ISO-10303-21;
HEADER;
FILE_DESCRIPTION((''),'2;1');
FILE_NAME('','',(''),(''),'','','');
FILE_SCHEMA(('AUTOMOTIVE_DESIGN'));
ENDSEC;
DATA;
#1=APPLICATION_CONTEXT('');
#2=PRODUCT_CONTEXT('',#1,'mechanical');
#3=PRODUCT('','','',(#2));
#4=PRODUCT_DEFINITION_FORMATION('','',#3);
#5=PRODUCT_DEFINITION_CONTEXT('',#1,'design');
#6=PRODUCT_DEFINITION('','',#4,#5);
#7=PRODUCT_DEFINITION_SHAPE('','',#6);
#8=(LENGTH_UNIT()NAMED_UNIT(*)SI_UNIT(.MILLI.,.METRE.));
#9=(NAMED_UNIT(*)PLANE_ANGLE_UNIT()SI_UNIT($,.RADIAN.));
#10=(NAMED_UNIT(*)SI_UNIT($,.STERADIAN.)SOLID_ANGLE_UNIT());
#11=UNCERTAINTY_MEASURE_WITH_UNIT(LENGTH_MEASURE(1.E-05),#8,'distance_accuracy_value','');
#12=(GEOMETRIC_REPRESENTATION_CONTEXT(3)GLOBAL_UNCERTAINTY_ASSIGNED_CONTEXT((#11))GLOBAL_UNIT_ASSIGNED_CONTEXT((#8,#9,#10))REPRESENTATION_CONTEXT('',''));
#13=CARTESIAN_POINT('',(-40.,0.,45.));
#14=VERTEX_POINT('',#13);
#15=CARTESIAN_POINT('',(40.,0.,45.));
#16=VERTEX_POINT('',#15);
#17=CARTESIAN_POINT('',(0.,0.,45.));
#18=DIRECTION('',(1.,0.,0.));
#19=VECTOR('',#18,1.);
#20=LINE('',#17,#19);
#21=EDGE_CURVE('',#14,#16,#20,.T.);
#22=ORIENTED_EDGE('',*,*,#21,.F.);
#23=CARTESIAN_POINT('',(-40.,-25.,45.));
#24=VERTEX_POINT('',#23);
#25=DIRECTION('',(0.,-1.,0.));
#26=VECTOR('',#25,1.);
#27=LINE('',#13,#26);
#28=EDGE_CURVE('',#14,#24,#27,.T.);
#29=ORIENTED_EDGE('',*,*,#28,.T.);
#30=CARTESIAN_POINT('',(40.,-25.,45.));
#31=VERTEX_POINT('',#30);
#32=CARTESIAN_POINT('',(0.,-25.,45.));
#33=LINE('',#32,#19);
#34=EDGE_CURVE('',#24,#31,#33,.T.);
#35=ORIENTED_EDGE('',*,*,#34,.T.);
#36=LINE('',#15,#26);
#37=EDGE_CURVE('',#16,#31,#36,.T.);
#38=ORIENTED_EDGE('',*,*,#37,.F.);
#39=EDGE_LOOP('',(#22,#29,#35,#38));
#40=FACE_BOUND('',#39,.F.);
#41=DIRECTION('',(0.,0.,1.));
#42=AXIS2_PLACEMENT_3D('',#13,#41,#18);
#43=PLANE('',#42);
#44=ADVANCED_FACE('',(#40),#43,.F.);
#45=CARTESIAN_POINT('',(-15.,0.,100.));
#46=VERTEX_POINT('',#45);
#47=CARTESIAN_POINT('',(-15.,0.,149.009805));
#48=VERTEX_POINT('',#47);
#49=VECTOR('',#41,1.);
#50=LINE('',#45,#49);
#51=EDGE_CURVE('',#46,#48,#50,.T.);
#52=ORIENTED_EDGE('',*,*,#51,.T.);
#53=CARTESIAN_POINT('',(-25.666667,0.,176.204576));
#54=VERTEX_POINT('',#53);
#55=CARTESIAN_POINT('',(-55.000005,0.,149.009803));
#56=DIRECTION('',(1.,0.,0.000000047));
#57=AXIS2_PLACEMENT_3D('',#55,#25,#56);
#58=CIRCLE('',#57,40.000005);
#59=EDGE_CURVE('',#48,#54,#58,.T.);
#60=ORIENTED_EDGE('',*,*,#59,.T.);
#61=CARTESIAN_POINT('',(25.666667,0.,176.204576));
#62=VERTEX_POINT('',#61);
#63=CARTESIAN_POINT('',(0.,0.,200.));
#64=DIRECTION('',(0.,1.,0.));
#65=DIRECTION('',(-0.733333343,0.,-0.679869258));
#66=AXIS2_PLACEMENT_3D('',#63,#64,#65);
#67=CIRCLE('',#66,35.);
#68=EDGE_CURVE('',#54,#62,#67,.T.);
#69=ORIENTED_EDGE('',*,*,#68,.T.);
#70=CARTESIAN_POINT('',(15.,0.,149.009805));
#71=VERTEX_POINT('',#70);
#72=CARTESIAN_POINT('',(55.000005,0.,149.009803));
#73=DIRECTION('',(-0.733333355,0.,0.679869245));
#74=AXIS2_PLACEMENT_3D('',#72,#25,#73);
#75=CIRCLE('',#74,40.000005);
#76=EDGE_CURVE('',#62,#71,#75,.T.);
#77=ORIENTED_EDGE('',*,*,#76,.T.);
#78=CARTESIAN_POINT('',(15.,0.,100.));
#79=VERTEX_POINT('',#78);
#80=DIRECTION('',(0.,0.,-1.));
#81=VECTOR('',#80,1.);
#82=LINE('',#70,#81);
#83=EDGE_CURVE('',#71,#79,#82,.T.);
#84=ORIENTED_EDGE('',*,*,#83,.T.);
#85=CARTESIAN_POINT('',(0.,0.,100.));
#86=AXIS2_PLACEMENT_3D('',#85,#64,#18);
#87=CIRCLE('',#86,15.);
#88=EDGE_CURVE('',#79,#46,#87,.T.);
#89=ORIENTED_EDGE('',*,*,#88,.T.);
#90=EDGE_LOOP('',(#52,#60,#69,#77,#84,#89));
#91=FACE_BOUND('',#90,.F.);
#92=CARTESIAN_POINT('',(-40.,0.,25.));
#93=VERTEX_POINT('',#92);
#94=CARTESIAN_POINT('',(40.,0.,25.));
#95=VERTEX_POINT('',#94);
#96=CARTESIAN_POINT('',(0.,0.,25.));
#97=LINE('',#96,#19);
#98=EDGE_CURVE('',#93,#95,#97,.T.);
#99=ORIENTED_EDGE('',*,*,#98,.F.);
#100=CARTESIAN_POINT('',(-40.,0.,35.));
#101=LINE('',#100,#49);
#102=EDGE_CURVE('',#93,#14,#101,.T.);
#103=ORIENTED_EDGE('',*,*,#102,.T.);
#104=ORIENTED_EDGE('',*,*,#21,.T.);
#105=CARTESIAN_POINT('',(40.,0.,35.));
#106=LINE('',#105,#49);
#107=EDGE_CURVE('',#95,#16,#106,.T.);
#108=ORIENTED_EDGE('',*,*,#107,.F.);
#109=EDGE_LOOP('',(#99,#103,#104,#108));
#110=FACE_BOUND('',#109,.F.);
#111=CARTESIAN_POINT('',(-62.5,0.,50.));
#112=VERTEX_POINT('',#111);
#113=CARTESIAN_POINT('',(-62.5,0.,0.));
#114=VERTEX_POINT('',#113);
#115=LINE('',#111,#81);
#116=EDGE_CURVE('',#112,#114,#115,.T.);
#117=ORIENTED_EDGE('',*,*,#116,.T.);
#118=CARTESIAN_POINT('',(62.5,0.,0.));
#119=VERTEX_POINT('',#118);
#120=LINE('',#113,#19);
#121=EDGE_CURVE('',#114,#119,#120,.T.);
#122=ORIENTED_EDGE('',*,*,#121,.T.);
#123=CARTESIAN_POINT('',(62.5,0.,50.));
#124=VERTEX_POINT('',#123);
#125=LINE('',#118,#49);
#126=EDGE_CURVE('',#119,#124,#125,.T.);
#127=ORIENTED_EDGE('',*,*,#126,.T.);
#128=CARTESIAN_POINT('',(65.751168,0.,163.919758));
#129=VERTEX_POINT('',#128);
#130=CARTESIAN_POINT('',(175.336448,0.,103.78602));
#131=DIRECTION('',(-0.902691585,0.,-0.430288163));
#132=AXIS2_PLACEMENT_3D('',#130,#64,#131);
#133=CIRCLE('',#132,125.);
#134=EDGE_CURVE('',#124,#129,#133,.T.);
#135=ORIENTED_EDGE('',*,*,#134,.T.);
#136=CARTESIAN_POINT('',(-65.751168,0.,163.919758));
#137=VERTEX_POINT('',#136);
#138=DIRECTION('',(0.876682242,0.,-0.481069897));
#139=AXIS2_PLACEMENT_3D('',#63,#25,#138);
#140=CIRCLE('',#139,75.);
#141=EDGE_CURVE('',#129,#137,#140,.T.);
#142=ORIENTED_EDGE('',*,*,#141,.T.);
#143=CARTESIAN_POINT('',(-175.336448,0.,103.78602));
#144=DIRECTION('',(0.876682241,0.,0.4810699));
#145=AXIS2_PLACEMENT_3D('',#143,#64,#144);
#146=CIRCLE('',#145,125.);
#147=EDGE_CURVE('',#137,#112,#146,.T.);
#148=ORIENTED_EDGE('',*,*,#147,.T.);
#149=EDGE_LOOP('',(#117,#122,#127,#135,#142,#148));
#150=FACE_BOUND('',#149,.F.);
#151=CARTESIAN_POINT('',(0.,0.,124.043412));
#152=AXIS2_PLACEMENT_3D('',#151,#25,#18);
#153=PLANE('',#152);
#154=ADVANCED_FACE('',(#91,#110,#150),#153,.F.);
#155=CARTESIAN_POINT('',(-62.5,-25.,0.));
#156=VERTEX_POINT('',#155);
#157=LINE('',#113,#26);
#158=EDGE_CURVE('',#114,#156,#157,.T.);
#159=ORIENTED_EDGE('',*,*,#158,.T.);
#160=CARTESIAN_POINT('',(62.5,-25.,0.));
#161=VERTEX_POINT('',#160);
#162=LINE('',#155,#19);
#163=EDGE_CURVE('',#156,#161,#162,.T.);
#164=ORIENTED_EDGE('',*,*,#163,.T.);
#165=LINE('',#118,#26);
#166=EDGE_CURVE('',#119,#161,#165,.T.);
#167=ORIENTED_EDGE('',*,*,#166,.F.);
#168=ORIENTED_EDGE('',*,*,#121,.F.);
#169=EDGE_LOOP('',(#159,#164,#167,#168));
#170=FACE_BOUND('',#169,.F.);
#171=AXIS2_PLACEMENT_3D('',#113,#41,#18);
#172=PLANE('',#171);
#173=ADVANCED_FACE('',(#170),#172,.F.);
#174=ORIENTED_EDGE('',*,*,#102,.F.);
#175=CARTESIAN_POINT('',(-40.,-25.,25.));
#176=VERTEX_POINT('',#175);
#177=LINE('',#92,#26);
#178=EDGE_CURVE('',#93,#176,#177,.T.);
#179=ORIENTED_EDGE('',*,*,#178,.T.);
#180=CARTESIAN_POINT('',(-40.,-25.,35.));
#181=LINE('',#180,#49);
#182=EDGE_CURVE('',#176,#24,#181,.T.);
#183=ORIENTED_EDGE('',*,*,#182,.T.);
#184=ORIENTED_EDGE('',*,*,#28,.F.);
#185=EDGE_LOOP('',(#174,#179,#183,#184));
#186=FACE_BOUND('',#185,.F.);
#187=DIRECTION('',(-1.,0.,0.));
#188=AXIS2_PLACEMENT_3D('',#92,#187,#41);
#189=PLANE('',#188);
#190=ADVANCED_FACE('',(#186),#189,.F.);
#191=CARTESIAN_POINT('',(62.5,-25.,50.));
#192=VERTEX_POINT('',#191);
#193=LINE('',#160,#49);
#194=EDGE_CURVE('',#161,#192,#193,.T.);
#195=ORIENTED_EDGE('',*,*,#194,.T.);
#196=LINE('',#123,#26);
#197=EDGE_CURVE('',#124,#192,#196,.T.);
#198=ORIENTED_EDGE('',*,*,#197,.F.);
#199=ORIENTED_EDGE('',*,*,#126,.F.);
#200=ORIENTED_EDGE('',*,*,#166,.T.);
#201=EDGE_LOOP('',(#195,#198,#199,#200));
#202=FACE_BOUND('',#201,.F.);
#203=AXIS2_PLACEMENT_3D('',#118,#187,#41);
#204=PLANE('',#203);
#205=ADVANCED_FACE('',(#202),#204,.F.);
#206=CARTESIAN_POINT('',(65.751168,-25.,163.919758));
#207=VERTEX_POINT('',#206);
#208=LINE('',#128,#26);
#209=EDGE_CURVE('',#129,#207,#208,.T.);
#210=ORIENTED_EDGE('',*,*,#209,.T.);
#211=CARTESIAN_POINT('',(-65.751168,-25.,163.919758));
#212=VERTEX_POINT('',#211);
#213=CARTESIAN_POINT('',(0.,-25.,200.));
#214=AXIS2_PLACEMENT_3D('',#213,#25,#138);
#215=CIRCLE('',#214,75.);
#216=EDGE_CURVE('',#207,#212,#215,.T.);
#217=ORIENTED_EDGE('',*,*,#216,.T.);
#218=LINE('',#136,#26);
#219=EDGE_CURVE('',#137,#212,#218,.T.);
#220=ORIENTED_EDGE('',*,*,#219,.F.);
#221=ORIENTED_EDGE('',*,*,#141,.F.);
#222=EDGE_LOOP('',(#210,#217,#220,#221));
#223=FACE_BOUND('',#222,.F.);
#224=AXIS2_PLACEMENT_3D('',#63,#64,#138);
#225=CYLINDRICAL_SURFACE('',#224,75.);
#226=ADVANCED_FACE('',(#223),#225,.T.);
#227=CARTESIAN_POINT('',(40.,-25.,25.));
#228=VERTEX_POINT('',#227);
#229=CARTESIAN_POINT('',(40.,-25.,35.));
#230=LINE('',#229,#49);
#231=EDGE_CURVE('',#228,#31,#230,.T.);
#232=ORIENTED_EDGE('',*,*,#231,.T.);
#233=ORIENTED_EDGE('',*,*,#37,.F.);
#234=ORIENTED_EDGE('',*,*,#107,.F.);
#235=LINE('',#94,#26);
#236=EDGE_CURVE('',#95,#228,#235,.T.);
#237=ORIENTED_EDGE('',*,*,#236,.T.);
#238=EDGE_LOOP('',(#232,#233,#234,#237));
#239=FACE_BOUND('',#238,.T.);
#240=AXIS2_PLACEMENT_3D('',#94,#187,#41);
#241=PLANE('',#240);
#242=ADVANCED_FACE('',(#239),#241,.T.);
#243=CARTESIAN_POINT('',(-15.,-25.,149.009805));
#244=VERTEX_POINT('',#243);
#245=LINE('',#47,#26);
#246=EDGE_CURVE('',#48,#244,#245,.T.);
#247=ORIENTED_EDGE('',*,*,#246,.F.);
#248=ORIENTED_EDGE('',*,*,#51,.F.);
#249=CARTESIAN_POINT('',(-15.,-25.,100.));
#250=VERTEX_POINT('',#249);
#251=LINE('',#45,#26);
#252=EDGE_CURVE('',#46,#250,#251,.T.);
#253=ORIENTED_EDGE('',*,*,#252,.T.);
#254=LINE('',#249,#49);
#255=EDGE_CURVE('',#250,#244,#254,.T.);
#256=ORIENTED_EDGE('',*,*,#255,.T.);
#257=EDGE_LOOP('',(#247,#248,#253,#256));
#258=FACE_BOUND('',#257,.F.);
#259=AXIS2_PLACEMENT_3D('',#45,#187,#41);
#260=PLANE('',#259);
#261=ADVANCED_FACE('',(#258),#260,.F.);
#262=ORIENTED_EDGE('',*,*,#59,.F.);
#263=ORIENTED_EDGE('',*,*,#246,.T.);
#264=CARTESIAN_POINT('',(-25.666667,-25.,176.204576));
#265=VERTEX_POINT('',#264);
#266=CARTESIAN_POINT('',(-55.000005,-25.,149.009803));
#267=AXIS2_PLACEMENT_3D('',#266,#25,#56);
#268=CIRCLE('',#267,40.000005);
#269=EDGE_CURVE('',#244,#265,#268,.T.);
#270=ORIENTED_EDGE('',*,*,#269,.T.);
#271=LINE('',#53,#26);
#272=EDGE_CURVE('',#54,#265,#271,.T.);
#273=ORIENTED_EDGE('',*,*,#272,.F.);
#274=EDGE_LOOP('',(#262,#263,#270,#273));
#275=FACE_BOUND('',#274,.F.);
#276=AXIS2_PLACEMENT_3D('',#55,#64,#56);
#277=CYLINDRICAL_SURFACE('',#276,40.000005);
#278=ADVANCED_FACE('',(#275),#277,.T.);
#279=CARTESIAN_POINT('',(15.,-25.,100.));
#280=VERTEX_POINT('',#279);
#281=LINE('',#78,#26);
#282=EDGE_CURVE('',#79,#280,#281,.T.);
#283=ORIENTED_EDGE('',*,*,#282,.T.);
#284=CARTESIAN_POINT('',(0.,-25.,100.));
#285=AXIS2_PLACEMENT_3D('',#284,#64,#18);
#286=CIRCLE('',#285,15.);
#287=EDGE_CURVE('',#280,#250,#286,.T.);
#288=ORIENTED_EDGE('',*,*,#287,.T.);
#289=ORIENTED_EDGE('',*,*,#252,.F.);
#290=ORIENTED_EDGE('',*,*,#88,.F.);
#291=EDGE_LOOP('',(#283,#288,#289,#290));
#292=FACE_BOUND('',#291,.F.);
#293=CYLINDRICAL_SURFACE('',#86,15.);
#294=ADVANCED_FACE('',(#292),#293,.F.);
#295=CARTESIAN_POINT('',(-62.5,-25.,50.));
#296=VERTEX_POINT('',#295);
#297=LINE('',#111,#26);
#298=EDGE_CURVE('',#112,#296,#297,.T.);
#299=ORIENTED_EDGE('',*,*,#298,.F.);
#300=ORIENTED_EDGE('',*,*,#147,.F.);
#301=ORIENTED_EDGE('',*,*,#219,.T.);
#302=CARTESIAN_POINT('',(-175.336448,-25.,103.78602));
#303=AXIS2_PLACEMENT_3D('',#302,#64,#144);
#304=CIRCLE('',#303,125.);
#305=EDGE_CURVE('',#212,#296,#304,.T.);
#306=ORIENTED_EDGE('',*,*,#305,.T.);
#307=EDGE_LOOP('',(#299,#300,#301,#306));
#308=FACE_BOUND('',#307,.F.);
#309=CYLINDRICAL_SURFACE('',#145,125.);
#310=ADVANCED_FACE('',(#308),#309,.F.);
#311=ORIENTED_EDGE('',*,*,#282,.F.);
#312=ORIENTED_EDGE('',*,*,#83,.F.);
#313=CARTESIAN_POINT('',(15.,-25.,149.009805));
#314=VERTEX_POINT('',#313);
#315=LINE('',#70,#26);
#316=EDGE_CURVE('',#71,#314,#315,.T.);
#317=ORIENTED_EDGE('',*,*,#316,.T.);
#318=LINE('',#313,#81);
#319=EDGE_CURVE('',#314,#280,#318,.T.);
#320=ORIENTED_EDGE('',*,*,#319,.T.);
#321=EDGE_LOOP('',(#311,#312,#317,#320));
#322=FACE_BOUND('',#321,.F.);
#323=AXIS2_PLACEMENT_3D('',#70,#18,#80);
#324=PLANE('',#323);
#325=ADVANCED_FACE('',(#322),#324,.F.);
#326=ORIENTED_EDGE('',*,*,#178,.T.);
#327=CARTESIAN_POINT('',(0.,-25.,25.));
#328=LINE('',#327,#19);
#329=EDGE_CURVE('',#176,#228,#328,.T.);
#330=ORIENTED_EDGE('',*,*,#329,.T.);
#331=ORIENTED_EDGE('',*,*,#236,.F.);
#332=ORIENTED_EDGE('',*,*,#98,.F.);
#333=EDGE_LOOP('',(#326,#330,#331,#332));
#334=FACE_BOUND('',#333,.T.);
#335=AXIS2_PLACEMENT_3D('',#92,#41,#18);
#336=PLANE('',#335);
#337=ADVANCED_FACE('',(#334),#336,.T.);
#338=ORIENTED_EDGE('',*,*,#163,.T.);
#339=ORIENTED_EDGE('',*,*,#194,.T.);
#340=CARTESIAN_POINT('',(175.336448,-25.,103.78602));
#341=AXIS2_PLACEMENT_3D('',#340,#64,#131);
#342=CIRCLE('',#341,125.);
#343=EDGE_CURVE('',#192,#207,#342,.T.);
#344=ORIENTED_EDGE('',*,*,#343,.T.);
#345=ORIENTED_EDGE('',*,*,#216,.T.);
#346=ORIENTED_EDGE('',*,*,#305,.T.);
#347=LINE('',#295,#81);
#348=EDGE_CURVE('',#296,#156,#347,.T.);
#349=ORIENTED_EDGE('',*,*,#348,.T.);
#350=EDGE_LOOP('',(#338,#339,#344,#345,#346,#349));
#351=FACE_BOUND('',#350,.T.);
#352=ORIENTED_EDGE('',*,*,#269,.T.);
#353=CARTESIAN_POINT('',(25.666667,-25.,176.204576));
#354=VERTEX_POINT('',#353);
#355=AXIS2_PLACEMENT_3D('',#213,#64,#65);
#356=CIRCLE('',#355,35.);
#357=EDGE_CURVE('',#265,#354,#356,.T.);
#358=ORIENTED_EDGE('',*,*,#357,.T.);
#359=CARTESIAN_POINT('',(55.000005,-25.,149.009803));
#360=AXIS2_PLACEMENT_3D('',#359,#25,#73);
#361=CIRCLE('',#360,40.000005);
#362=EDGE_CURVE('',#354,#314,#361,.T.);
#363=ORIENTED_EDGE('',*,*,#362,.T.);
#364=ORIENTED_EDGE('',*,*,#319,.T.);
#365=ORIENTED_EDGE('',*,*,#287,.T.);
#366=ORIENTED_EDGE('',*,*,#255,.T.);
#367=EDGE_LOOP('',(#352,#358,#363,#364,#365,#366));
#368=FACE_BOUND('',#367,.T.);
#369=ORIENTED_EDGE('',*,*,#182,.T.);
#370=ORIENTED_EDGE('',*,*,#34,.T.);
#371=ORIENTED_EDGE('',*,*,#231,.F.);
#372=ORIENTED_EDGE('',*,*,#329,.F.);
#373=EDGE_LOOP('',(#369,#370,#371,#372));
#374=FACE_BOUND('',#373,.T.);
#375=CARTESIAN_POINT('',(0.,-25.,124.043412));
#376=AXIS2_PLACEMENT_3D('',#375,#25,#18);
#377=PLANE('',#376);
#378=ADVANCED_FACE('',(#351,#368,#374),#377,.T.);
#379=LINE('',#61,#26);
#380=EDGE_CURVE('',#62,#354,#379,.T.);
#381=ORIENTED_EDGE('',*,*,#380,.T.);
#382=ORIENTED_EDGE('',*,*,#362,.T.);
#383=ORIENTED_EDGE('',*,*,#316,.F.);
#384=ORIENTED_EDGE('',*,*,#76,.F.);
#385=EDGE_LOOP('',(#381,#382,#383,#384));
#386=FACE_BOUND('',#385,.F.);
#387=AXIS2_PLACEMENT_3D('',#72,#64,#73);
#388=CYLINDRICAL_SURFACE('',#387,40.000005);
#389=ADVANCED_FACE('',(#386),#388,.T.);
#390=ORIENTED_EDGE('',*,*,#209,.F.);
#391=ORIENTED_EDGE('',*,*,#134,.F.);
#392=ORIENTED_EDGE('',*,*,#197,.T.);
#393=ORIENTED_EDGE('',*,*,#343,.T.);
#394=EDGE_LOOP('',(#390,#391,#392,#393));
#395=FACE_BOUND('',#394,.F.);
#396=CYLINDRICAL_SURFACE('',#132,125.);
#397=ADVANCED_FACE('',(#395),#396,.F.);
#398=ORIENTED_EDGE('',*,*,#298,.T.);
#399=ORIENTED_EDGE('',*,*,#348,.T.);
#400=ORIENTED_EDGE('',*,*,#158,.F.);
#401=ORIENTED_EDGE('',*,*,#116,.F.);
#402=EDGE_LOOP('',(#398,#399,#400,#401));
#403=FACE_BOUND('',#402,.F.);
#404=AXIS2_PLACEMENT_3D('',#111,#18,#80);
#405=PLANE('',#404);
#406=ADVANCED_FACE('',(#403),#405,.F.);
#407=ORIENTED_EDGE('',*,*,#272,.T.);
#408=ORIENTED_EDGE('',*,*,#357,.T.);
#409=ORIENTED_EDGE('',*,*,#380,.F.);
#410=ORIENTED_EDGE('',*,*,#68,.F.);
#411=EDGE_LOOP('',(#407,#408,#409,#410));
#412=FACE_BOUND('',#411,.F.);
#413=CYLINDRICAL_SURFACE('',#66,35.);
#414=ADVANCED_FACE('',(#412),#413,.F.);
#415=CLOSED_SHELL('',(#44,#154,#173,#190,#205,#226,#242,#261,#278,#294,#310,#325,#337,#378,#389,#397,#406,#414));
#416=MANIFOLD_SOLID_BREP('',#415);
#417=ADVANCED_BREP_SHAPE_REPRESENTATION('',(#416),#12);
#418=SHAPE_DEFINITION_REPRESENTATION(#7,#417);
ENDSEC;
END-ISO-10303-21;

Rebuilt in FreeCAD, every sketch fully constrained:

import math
import FreeCAD as App
import Part
import Sketcher

V = App.Vector
Q = App.Units.Quantity

doc = App.newDocument("Part")
body = doc.addObject("PartDesign::Body", "Body")

sketch1 = body.newObject("Sketcher::SketchObject", "Sketch")
sketch1.AttachmentSupport = (doc.getObject("XZ_Plane"), [""])
sketch1.MapMode = "FlatFace"
sketch1.addGeometry([
    Part.LineSegment(V(-62, 0, 0), V(62, 0, 0)),
    Part.LineSegment(V(62, 0, 0), V(62, 50, 0)),
    Part.ArcOfCircle(Part.Circle(V(175, 104, 0), V(0, 0, 1), 125), math.radians(151), math.radians(205)),
    Part.ArcOfCircle(Part.Circle(V(0, 200, 0), V(0, 0, 1), 75), math.radians(-29), math.radians(209)),
    Part.ArcOfCircle(Part.Circle(V(-175, 104, 0), V(0, 0, 1), 125), math.radians(-25), math.radians(29)),
    Part.LineSegment(V(-62, 50, 0), V(-62, 0, 0)),
    Part.LineSegment(V(40, 25, 0), V(-40, 25, 0)),
    Part.LineSegment(V(-40, 25, 0), V(-40, 45, 0)),
    Part.LineSegment(V(-40, 45, 0), V(40, 45, 0)),
    Part.LineSegment(V(40, 45, 0), V(40, 25, 0)),
    Part.ArcOfCircle(Part.Circle(V(-55, 149, 0), V(0, 0, 1), 40), math.radians(0), math.radians(43)),
    Part.ArcOfCircle(Part.Circle(V(0, 200, 0), V(0, 0, 1), 35), math.radians(-43), math.radians(223)),
    Part.ArcOfCircle(Part.Circle(V(55, 149, 0), V(0, 0, 1), 40), math.radians(137), math.radians(180)),
    Part.LineSegment(V(15, 149, 0), V(15, 100, 0)),
    Part.ArcOfCircle(Part.Circle(V(0, 100, 0), V(0, 0, 1), 15), math.radians(180), math.radians(360)),
    Part.LineSegment(V(-15, 100, 0), V(-15, 149, 0)),
], False)
sketch1.addConstraint([
    Sketcher.Constraint("Coincident", 0, 2, 1, 1),
    Sketcher.Constraint("Coincident", 1, 2, 2, 2),
    Sketcher.Constraint("Tangent", 2, 1, 3, 1),
    Sketcher.Constraint("Tangent", 3, 2, 4, 2),
    Sketcher.Constraint("Coincident", 4, 1, 5, 1),
    Sketcher.Constraint("Coincident", 5, 2, 0, 1),
    Sketcher.Constraint("Coincident", 6, 2, 7, 1),
    Sketcher.Constraint("Coincident", 7, 2, 8, 1),
    Sketcher.Constraint("Coincident", 8, 2, 9, 1),
    Sketcher.Constraint("Coincident", 9, 2, 6, 1),
    Sketcher.Constraint("Tangent", 10, 2, 11, 2),
    Sketcher.Constraint("Tangent", 11, 1, 12, 1),
    Sketcher.Constraint("Tangent", 12, 2, 13, 1),
    Sketcher.Constraint("Tangent", 13, 2, 14, 2),
    Sketcher.Constraint("Tangent", 14, 1, 15, 1),
    Sketcher.Constraint("Tangent", 15, 2, 10, 1),
    Sketcher.Constraint("Horizontal", 0),
    Sketcher.Constraint("Vertical", 1),
    Sketcher.Constraint("Vertical", 5),
    Sketcher.Constraint("Horizontal", 6),
    Sketcher.Constraint("Vertical", 7),
    Sketcher.Constraint("Horizontal", 8),
    Sketcher.Constraint("Vertical", 9),
    Sketcher.Constraint("Vertical", 13),
    Sketcher.Constraint("Vertical", 15),
    Sketcher.Constraint("Coincident", 11, 3, 3, 3),
    Sketcher.Constraint("Equal", 2, 4),
    Sketcher.Constraint("Equal", 10, 12),
    Sketcher.Constraint("Symmetric", 0, 2, 5, 2, -1, 1),
    Sketcher.Constraint("Symmetric", 2, 3, 4, 3, -2),
    Sketcher.Constraint("PointOnObject", 14, 3, -2),
    Sketcher.Constraint("Radius", 2, Q("125 mm")),
    Sketcher.Constraint("Radius", 3, Q("75 mm")),
    Sketcher.Constraint("Radius", 11, Q("35 mm")),
    Sketcher.Constraint("Radius", 14, Q("15 mm")),
    Sketcher.Constraint("DistanceX", 0, 1, 0, 2, Q("125 mm")),
    Sketcher.Constraint("DistanceX", 6, 2, 6, 1, Q("80 mm")),
    Sketcher.Constraint("DistanceY", 1, 1, 1, 2, Q("50 mm")),
    Sketcher.Constraint("DistanceY", 7, 1, 7, 2, Q("20 mm")),
    Sketcher.Constraint("DistanceY", -1, 1, 3, 3, Q("200 mm")),
    Sketcher.Constraint("DistanceY", -1, 1, 14, 3, Q("100 mm")),
    Sketcher.Constraint("DistanceX", 6, 2, -1, 1, Q("40 mm")),
    Sketcher.Constraint("DistanceY", -1, 1, 6, 2, Q("25 mm")),
    Sketcher.Constraint("Radius", 10, Q("40.000005 mm")),
])
pad1 = body.newObject("PartDesign::Pad", "Pad")
pad1.Profile = sketch1
pad1.Length = 25

doc.recompute()
